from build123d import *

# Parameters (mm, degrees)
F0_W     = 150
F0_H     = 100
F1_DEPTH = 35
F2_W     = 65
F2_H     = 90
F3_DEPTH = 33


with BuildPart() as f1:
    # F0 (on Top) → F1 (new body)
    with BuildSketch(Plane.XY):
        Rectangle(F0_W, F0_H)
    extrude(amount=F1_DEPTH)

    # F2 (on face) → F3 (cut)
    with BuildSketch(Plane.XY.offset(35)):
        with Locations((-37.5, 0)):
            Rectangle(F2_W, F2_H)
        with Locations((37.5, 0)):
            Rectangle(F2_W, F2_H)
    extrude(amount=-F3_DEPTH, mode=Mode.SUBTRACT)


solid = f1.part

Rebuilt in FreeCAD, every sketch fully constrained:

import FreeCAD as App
import Part
import Sketcher
from FreeCAD import Vector

doc = App.newDocument("Part")
params = doc.addObject("Spreadsheet::Sheet", "Params")
for row, (alias, value) in enumerate([
    ("sketch1_width", "150 mm"),
    ("sketch1_height", "100 mm"),
    ("pad1_length", "35 mm"),
    ("sketch2_width", "65 mm"),
    ("sketch2_height", "90 mm"),
    ("pocket1_length", "33 mm"),
], start=1):
    params.set(f"A{row}", alias)
    params.set(f"B{row}", "=" + value)
    params.setAlias(f"B{row}", alias)

body = doc.addObject("PartDesign::Body", "Body")

# Sketch on XY plane
sketch1 = body.newObject("Sketcher::SketchObject", "Sketch")
sketch1.AttachmentSupport = (doc.getObject("XY_Plane"), [""])
sketch1.MapMode = "FlatFace"
sketch1.addGeometry(Part.LineSegment(Vector(-75, 50, 0), Vector(-75, -50, 0)), False)
sketch1.addGeometry(Part.LineSegment(Vector(-75, -50, 0), Vector(75, -50, 0)), False)
sketch1.addGeometry(Part.LineSegment(Vector(75, -50, 0), Vector(75, 50, 0)), False)
sketch1.addGeometry(Part.LineSegment(Vector(75, 50, 0), Vector(-75, 50, 0)), False)
sketch1.addConstraint(Sketcher.Constraint("Coincident", 0, 2, 1, 1))
sketch1.addConstraint(Sketcher.Constraint("Coincident", 1, 2, 2, 1))
sketch1.addConstraint(Sketcher.Constraint("Coincident", 2, 2, 3, 1))
sketch1.addConstraint(Sketcher.Constraint("Coincident", 3, 2, 0, 1))
sketch1.addConstraint(Sketcher.Constraint("Vertical", 0))
sketch1.addConstraint(Sketcher.Constraint("Horizontal", 1))
sketch1.addConstraint(Sketcher.Constraint("Vertical", 2))
sketch1.addConstraint(Sketcher.Constraint("Horizontal", 3))
sketch1.addConstraint(Sketcher.Constraint("Symmetric", 0, 2, 2, 2, -1, 1))
sketch1.addConstraint(Sketcher.Constraint("DistanceX", 1, 1, 1, 2, 150.0))
sketch1.addConstraint(Sketcher.Constraint("DistanceY", 0, 2, 0, 1, 100.0))
sketch1.setExpression("Constraints[9]", "Params.sketch1_width")
sketch1.setExpression("Constraints[10]", "Params.sketch1_height")
pad1 = body.newObject("PartDesign::Pad", "Pad")
pad1.Profile = sketch1
pad1.setExpression("Length", "Params.pad1_length")

# Sketch on XY plane
sketch2 = body.newObject("Sketcher::SketchObject", "Sketch001")
sketch2.AttachmentSupport = (doc.getObject("XY_Plane"), [""])
sketch2.MapMode = "FlatFace"
sketch2.AttachmentOffset = App.Placement(Vector(0, 0, 35), App.Rotation())
sketch2.addGeometry(Part.LineSegment(Vector(-70, 45, 0), Vector(-70, -45, 0)), False)
sketch2.addGeometry(Part.LineSegment(Vector(-70, -45, 0), Vector(-5, -45, 0)), False)
sketch2.addGeometry(Part.LineSegment(Vector(-5, -45, 0), Vector(-5, 45, 0)), False)
sketch2.addGeometry(Part.LineSegment(Vector(-5, 45, 0), Vector(-70, 45, 0)), False)
sketch2.addGeometry(Part.LineSegment(Vector(5, 45, 0), Vector(5, -45, 0)), False)
sketch2.addGeometry(Part.LineSegment(Vector(5, -45, 0), Vector(70, -45, 0)), False)
sketch2.addGeometry(Part.LineSegment(Vector(70, -45, 0), Vector(70, 45, 0)), False)
sketch2.addGeometry(Part.LineSegment(Vector(70, 45, 0), Vector(5, 45, 0)), False)
sketch2.addConstraint(Sketcher.Constraint("Coincident", 0, 2, 1, 1))
sketch2.addConstraint(Sketcher.Constraint("Coincident", 1, 2, 2, 1))
sketch2.addConstraint(Sketcher.Constraint("Coincident", 2, 2, 3, 1))
sketch2.addConstraint(Sketcher.Constraint("Coincident", 3, 2, 0, 1))
sketch2.addConstraint(Sketcher.Constraint("Coincident", 4, 2, 5, 1))
sketch2.addConstraint(Sketcher.Constraint("Coincident", 5, 2, 6, 1))
sketch2.addConstraint(Sketcher.Constraint("Coincident", 6, 2, 7, 1))
sketch2.addConstraint(Sketcher.Constraint("Coincident", 7, 2, 4, 1))
sketch2.addConstraint(Sketcher.Constraint("Vertical", 0))
sketch2.addConstraint(Sketcher.Constraint("Horizontal", 1))
sketch2.addConstraint(Sketcher.Constraint("Vertical", 2))
sketch2.addConstraint(Sketcher.Constraint("Horizontal", 3))
sketch2.addConstraint(Sketcher.Constraint("Vertical", 4))
sketch2.addConstraint(Sketcher.Constraint("Horizontal", 5))
sketch2.addConstraint(Sketcher.Constraint("Vertical", 6))
sketch2.addConstraint(Sketcher.Constraint("Horizontal", 7))
sketch2.addConstraint(Sketcher.Constraint("Symmetric", 2, 2, 4, 2, -1, 1))
sketch2.addConstraint(Sketcher.Constraint("Symmetric", 0, 2, 6, 2, -1, 1))
sketch2.addConstraint(Sketcher.Constraint("Horizontal", 1, 2, 4, 2))
sketch2.addConstraint(Sketcher.Constraint("DistanceX", 1, 1, 1, 2, 65.0))
sketch2.addConstraint(Sketcher.Constraint("DistanceY", 0, 2, 0, 1, 90.0))
sketch2.addConstraint(Sketcher.Constraint("DistanceX", 0, 2, -1, 1, 70.0))
sketch2.setExpression("Constraints[19]", "Params.sketch2_width")
sketch2.setExpression("Constraints[20]", "Params.sketch2_height")
pocket1 = body.newObject("PartDesign::Pocket", "Pocket")
pocket1.Profile = sketch2
pocket1.setExpression("Length", "Params.pocket1_length")

doc.recompute()
